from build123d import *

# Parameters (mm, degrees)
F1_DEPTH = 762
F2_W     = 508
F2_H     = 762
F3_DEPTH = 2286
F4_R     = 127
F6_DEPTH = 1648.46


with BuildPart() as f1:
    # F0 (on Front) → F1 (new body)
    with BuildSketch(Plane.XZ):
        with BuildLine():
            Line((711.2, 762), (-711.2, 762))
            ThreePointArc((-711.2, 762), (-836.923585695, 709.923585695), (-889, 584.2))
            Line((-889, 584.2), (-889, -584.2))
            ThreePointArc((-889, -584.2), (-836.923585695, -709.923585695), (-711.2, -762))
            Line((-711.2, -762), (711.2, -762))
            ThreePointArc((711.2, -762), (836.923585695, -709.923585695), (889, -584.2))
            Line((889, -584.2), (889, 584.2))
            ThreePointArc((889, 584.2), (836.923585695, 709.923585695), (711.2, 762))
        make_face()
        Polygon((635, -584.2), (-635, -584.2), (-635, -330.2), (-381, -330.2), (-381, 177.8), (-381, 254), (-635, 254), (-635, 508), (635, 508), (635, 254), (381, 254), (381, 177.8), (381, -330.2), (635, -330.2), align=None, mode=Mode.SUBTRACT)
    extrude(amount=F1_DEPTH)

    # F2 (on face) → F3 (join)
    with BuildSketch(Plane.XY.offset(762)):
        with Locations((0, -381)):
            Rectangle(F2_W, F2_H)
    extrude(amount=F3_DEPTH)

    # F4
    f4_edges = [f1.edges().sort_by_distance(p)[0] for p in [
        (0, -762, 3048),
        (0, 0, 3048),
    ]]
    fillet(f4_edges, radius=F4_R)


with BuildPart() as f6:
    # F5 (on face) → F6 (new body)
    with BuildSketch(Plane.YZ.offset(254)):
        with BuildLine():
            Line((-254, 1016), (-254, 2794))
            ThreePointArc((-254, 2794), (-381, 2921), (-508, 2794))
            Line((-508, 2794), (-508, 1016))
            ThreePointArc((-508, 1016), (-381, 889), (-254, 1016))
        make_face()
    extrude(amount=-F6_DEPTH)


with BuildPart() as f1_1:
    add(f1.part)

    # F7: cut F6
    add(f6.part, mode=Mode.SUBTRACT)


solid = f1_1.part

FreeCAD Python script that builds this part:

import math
import FreeCAD as App
import Part
import Sketcher

V = App.Vector
Q = App.Units.Quantity


def edges_at(feature, points):
    """Names of the edges that pass closest to the given points."""
    edges = feature.Shape.Edges
    near = lambda p: min(range(len(edges)), key=lambda i: edges[i].distToShape(Part.Vertex(*p))[0])
    return sorted({f"Edge{near(p) + 1}" for p in points})

doc = App.newDocument("Part")
body = doc.addObject("PartDesign::Body", "Body")

sketch1 = body.newObject("Sketcher::SketchObject", "Sketch")
sketch1.AttachmentSupport = (doc.getObject("XZ_Plane"), [""])
sketch1.MapMode = "FlatFace"
sketch1.addGeometry([
    Part.LineSegment(V(711, 762, 0), V(-711, 762, 0)),
    Part.ArcOfCircle(Part.Circle(V(-711, 584, 0), V(0, 0, 1), 178), math.radians(90), math.radians(180)),
    Part.LineSegment(V(-889, 584, 0), V(-889, -584, 0)),
    Part.ArcOfCircle(Part.Circle(V(-711, -584, 0), V(0, 0, 1), 178), math.radians(180), math.radians(270)),
    Part.LineSegment(V(-711, -762, 0), V(711, -762, 0)),
    Part.ArcOfCircle(Part.Circle(V(711, -584, 0), V(0, 0, 1), 178), math.radians(-90), math.radians(0)),
    Part.LineSegment(V(889, -584, 0), V(889, 584, 0)),
    Part.ArcOfCircle(Part.Circle(V(711, 584, 0), V(0, 0, 1), 178), math.radians(0), math.radians(90)),
    Part.LineSegment(V(635, -330, 0), V(635, -584, 0)),
    Part.LineSegment(V(635, -584, 0), V(-635, -584, 0)),
    Part.LineSegment(V(-635, -584, 0), V(-635, -330, 0)),
    Part.LineSegment(V(-635, -330, 0), V(-381, -330, 0)),
    Part.LineSegment(V(-381, -330, 0), V(-381, 254, 0)),
    Part.LineSegment(V(-381, 254, 0), V(-635, 254, 0)),
    Part.LineSegment(V(-635, 254, 0), V(-635, 508, 0)),
    Part.LineSegment(V(-635, 508, 0), V(635, 508, 0)),
    Part.LineSegment(V(635, 508, 0), V(635, 254, 0)),
    Part.LineSegment(V(635, 254, 0), V(381, 254, 0)),
    Part.LineSegment(V(381, 254, 0), V(381, -330, 0)),
    Part.LineSegment(V(381, -330, 0), V(635, -330, 0)),
], False)
sketch1.addConstraint([
    Sketcher.Constraint("Tangent", 0, 2, 1, 1),
    Sketcher.Constraint("Tangent", 1, 2, 2, 1),
    Sketcher.Constraint("Tangent", 2, 2, 3, 1),
    Sketcher.Constraint("Tangent", 3, 2, 4, 1),
    Sketcher.Constraint("Tangent", 4, 2, 5, 1),
    Sketcher.Constraint("Tangent", 5, 2, 6, 1),
    Sketcher.Constraint("Tangent", 6, 2, 7, 1),
    Sketcher.Constraint("Tangent", 7, 2, 0, 1),
    Sketcher.Constraint("Coincident", 8, 2, 9, 1),
    Sketcher.Constraint("Coincident", 9, 2, 10, 1),
    Sketcher.Constraint("Coincident", 10, 2, 11, 1),
    Sketcher.Constraint("Coincident", 11, 2, 12, 1),
    Sketcher.Constraint("Coincident", 12, 2, 13, 1),
    Sketcher.Constraint("Coincident", 13, 2, 14, 1),
    Sketcher.Constraint("Coincident", 14, 2, 15, 1),
    Sketcher.Constraint("Coincident", 15, 2, 16, 1),
    Sketcher.Constraint("Coincident", 16, 2, 17, 1),
    Sketcher.Constraint("Coincident", 17, 2, 18, 1),
    Sketcher.Constraint("Coincident", 18, 2, 19, 1),
    Sketcher.Constraint("Coincident", 19, 2, 8, 1),
    Sketcher.Constraint("Horizontal", 0),
    Sketcher.Constraint("Vertical", 2),
    Sketcher.Constraint("Horizontal", 4),
    Sketcher.Constraint("Vertical", 6),
    Sketcher.Constraint("Vertical", 8),
    Sketcher.Constraint("Horizontal", 9),
    Sketcher.Constraint("Vertical", 10),
    Sketcher.Constraint("Horizontal", 11),
    Sketcher.Constraint("Vertical", 12),
    Sketcher.Constraint("Horizontal", 13),
    Sketcher.Constraint("Vertical", 14),
    Sketcher.Constraint("Horizontal", 15),
    Sketcher.Constraint("Vertical", 16),
    Sketcher.Constraint("Horizontal", 17),
    Sketcher.Constraint("Vertical", 18),
    Sketcher.Constraint("Horizontal", 19),
    Sketcher.Constraint("Equal", 1, 3),
    Sketcher.Constraint("Equal", 3, 5),
    Sketcher.Constraint("Equal", 5, 7),
    Sketcher.Constraint("Symmetric", 1, 3, 5, 3, -1, 1),
    Sketcher.Constraint("Symmetric", 13, 2, 16, 2, -2),
    Sketcher.Constraint("Symmetric", 11, 2, 18, 2, -2),
    Sketcher.Constraint("Horizontal", 5, 2, 8, 2),
    Sketcher.Constraint("Vertical", 10, 2, 13, 2),
    Sketcher.Constraint("Vertical", 8, 2, 15, 2),
    Sketcher.Constraint("Equal", 19, 8),
    Sketcher.Constraint("Equal", 10, 14),
    Sketcher.Constraint("Radius", 1, Q("7 in")),
    Sketcher.Constraint("DistanceX", 0, 2, 0, 1, Q("56 in")),
    Sketcher.Constraint("DistanceX", 9, 2, 9, 1, Q("50 in")),
    Sketcher.Constraint("DistanceX", 11, 1, 11, 2, Q("10 in")),
    Sketcher.Constraint("DistanceY", 2, 2, 2, 1, Q("46 in")),
    Sketcher.Constraint("DistanceY", 12, 1, 12, 2, Q("23 in")),
])
pad1 = body.newObject("PartDesign::Pad", "Pad")
pad1.Profile = sketch1
pad1.Length = Q("30 in")

sketch2 = body.newObject("Sketcher::SketchObject", "Sketch001")
sketch2.AttachmentSupport = (doc.getObject("XY_Plane"), [""])
sketch2.MapMode = "FlatFace"
sketch2.AttachmentOffset = App.Placement(V(0, 0, 30 * 25.4), App.Rotation())
sketch2.addGeometry([
    Part.LineSegment(V(-254, 0, 0), V(-254, -762, 0)),
    Part.LineSegment(V(-254, -762, 0), V(254, -762, 0)),
    Part.LineSegment(V(254, -762, 0), V(254, 0, 0)),
    Part.LineSegment(V(254, 0, 0), V(-254, 0, 0)),
], False)
sketch2.addConstraint([
    Sketcher.Constraint("Coincident", 0, 2, 1, 1),
    Sketcher.Constraint("Coincident", 1, 2, 2, 1),
    Sketcher.Constraint("Coincident", 2, 2, 3, 1),
    Sketcher.Constraint("Coincident", 3, 2, 0, 1),
    Sketcher.Constraint("Vertical", 0),
    Sketcher.Constraint("Horizontal", 1),
    Sketcher.Constraint("Vertical", 2),
    Sketcher.Constraint("Horizontal", 3),
    Sketcher.Constraint("Symmetric", 2, 2, 3, 2, -1, 1),
    Sketcher.Constraint("DistanceX", 1, 1, 1, 2, Q("20 in")),
    Sketcher.Constraint("DistanceY", 0, 2, 0, 1, Q("30 in")),
])
pad2 = body.newObject("PartDesign::Pad", "Pad001")
pad2.Profile = sketch2
pad2.Length = Q("90 in")
doc.recompute()

fillet = body.newObject("PartDesign::Fillet", "Fillet")
fillet.Base = (pad2, edges_at(pad2, [(0, -762, 3048), (0, 0, 3048)]))
fillet.Radius = Q("5 in")
body2 = doc.addObject("PartDesign::Body", "Body001")

sketch3 = body2.newObject("Sketcher::SketchObject", "Sketch002")
sketch3.AttachmentSupport = (doc.getObject("YZ_Plane001"), [""])
sketch3.MapMode = "FlatFace"
sketch3.AttachmentOffset = App.Placement(V(0, 0, 10 * 25.4), App.Rotation())
sketch3.addGeometry([
    Part.LineSegment(V(-254, 1016, 0), V(-254, 2794, 0)),
    Part.ArcOfCircle(Part.Circle(V(-381, 2794, 0), V(0, 0, 1), 127), math.radians(0), math.radians(180)),
    Part.LineSegment(V(-508, 2794, 0), V(-508, 1016, 0)),
    Part.ArcOfCircle(Part.Circle(V(-381, 1016, 0), V(0, 0, 1), 127), math.radians(180), math.radians(360)),
], False)
sketch3.addConstraint([
    Sketcher.Constraint("Tangent", 0, 2, 1, 1),
    Sketcher.Constraint("Tangent", 1, 2, 2, 1),
    Sketcher.Constraint("Tangent", 2, 2, 3, 1),
    Sketcher.Constraint("Tangent", 3, 2, 0, 1),
    Sketcher.Constraint("Vertical", 0),
    Sketcher.Constraint("Vertical", 2),
    Sketcher.Constraint("Radius", 1, Q("5 in")),
    Sketcher.Constraint("DistanceY", 0, 1, 0, 2, Q("70 in")),
    Sketcher.Constraint("DistanceX", 1, 3, -1, 1, Q("15 in")),
    Sketcher.Constraint("DistanceY", -1, 1, 1, 3, Q("110 in")),
])
pad3 = body2.newObject("PartDesign::Pad", "Pad002")
pad3.Profile = sketch3
pad3.Length = Q("64.9 in")
pad3.Reversed = True
doc.recompute()

boolean = body.newObject("PartDesign::Boolean", "Boolean")
boolean.Type = "Cut"
boolean.addObjects([body2])

doc.recompute()
